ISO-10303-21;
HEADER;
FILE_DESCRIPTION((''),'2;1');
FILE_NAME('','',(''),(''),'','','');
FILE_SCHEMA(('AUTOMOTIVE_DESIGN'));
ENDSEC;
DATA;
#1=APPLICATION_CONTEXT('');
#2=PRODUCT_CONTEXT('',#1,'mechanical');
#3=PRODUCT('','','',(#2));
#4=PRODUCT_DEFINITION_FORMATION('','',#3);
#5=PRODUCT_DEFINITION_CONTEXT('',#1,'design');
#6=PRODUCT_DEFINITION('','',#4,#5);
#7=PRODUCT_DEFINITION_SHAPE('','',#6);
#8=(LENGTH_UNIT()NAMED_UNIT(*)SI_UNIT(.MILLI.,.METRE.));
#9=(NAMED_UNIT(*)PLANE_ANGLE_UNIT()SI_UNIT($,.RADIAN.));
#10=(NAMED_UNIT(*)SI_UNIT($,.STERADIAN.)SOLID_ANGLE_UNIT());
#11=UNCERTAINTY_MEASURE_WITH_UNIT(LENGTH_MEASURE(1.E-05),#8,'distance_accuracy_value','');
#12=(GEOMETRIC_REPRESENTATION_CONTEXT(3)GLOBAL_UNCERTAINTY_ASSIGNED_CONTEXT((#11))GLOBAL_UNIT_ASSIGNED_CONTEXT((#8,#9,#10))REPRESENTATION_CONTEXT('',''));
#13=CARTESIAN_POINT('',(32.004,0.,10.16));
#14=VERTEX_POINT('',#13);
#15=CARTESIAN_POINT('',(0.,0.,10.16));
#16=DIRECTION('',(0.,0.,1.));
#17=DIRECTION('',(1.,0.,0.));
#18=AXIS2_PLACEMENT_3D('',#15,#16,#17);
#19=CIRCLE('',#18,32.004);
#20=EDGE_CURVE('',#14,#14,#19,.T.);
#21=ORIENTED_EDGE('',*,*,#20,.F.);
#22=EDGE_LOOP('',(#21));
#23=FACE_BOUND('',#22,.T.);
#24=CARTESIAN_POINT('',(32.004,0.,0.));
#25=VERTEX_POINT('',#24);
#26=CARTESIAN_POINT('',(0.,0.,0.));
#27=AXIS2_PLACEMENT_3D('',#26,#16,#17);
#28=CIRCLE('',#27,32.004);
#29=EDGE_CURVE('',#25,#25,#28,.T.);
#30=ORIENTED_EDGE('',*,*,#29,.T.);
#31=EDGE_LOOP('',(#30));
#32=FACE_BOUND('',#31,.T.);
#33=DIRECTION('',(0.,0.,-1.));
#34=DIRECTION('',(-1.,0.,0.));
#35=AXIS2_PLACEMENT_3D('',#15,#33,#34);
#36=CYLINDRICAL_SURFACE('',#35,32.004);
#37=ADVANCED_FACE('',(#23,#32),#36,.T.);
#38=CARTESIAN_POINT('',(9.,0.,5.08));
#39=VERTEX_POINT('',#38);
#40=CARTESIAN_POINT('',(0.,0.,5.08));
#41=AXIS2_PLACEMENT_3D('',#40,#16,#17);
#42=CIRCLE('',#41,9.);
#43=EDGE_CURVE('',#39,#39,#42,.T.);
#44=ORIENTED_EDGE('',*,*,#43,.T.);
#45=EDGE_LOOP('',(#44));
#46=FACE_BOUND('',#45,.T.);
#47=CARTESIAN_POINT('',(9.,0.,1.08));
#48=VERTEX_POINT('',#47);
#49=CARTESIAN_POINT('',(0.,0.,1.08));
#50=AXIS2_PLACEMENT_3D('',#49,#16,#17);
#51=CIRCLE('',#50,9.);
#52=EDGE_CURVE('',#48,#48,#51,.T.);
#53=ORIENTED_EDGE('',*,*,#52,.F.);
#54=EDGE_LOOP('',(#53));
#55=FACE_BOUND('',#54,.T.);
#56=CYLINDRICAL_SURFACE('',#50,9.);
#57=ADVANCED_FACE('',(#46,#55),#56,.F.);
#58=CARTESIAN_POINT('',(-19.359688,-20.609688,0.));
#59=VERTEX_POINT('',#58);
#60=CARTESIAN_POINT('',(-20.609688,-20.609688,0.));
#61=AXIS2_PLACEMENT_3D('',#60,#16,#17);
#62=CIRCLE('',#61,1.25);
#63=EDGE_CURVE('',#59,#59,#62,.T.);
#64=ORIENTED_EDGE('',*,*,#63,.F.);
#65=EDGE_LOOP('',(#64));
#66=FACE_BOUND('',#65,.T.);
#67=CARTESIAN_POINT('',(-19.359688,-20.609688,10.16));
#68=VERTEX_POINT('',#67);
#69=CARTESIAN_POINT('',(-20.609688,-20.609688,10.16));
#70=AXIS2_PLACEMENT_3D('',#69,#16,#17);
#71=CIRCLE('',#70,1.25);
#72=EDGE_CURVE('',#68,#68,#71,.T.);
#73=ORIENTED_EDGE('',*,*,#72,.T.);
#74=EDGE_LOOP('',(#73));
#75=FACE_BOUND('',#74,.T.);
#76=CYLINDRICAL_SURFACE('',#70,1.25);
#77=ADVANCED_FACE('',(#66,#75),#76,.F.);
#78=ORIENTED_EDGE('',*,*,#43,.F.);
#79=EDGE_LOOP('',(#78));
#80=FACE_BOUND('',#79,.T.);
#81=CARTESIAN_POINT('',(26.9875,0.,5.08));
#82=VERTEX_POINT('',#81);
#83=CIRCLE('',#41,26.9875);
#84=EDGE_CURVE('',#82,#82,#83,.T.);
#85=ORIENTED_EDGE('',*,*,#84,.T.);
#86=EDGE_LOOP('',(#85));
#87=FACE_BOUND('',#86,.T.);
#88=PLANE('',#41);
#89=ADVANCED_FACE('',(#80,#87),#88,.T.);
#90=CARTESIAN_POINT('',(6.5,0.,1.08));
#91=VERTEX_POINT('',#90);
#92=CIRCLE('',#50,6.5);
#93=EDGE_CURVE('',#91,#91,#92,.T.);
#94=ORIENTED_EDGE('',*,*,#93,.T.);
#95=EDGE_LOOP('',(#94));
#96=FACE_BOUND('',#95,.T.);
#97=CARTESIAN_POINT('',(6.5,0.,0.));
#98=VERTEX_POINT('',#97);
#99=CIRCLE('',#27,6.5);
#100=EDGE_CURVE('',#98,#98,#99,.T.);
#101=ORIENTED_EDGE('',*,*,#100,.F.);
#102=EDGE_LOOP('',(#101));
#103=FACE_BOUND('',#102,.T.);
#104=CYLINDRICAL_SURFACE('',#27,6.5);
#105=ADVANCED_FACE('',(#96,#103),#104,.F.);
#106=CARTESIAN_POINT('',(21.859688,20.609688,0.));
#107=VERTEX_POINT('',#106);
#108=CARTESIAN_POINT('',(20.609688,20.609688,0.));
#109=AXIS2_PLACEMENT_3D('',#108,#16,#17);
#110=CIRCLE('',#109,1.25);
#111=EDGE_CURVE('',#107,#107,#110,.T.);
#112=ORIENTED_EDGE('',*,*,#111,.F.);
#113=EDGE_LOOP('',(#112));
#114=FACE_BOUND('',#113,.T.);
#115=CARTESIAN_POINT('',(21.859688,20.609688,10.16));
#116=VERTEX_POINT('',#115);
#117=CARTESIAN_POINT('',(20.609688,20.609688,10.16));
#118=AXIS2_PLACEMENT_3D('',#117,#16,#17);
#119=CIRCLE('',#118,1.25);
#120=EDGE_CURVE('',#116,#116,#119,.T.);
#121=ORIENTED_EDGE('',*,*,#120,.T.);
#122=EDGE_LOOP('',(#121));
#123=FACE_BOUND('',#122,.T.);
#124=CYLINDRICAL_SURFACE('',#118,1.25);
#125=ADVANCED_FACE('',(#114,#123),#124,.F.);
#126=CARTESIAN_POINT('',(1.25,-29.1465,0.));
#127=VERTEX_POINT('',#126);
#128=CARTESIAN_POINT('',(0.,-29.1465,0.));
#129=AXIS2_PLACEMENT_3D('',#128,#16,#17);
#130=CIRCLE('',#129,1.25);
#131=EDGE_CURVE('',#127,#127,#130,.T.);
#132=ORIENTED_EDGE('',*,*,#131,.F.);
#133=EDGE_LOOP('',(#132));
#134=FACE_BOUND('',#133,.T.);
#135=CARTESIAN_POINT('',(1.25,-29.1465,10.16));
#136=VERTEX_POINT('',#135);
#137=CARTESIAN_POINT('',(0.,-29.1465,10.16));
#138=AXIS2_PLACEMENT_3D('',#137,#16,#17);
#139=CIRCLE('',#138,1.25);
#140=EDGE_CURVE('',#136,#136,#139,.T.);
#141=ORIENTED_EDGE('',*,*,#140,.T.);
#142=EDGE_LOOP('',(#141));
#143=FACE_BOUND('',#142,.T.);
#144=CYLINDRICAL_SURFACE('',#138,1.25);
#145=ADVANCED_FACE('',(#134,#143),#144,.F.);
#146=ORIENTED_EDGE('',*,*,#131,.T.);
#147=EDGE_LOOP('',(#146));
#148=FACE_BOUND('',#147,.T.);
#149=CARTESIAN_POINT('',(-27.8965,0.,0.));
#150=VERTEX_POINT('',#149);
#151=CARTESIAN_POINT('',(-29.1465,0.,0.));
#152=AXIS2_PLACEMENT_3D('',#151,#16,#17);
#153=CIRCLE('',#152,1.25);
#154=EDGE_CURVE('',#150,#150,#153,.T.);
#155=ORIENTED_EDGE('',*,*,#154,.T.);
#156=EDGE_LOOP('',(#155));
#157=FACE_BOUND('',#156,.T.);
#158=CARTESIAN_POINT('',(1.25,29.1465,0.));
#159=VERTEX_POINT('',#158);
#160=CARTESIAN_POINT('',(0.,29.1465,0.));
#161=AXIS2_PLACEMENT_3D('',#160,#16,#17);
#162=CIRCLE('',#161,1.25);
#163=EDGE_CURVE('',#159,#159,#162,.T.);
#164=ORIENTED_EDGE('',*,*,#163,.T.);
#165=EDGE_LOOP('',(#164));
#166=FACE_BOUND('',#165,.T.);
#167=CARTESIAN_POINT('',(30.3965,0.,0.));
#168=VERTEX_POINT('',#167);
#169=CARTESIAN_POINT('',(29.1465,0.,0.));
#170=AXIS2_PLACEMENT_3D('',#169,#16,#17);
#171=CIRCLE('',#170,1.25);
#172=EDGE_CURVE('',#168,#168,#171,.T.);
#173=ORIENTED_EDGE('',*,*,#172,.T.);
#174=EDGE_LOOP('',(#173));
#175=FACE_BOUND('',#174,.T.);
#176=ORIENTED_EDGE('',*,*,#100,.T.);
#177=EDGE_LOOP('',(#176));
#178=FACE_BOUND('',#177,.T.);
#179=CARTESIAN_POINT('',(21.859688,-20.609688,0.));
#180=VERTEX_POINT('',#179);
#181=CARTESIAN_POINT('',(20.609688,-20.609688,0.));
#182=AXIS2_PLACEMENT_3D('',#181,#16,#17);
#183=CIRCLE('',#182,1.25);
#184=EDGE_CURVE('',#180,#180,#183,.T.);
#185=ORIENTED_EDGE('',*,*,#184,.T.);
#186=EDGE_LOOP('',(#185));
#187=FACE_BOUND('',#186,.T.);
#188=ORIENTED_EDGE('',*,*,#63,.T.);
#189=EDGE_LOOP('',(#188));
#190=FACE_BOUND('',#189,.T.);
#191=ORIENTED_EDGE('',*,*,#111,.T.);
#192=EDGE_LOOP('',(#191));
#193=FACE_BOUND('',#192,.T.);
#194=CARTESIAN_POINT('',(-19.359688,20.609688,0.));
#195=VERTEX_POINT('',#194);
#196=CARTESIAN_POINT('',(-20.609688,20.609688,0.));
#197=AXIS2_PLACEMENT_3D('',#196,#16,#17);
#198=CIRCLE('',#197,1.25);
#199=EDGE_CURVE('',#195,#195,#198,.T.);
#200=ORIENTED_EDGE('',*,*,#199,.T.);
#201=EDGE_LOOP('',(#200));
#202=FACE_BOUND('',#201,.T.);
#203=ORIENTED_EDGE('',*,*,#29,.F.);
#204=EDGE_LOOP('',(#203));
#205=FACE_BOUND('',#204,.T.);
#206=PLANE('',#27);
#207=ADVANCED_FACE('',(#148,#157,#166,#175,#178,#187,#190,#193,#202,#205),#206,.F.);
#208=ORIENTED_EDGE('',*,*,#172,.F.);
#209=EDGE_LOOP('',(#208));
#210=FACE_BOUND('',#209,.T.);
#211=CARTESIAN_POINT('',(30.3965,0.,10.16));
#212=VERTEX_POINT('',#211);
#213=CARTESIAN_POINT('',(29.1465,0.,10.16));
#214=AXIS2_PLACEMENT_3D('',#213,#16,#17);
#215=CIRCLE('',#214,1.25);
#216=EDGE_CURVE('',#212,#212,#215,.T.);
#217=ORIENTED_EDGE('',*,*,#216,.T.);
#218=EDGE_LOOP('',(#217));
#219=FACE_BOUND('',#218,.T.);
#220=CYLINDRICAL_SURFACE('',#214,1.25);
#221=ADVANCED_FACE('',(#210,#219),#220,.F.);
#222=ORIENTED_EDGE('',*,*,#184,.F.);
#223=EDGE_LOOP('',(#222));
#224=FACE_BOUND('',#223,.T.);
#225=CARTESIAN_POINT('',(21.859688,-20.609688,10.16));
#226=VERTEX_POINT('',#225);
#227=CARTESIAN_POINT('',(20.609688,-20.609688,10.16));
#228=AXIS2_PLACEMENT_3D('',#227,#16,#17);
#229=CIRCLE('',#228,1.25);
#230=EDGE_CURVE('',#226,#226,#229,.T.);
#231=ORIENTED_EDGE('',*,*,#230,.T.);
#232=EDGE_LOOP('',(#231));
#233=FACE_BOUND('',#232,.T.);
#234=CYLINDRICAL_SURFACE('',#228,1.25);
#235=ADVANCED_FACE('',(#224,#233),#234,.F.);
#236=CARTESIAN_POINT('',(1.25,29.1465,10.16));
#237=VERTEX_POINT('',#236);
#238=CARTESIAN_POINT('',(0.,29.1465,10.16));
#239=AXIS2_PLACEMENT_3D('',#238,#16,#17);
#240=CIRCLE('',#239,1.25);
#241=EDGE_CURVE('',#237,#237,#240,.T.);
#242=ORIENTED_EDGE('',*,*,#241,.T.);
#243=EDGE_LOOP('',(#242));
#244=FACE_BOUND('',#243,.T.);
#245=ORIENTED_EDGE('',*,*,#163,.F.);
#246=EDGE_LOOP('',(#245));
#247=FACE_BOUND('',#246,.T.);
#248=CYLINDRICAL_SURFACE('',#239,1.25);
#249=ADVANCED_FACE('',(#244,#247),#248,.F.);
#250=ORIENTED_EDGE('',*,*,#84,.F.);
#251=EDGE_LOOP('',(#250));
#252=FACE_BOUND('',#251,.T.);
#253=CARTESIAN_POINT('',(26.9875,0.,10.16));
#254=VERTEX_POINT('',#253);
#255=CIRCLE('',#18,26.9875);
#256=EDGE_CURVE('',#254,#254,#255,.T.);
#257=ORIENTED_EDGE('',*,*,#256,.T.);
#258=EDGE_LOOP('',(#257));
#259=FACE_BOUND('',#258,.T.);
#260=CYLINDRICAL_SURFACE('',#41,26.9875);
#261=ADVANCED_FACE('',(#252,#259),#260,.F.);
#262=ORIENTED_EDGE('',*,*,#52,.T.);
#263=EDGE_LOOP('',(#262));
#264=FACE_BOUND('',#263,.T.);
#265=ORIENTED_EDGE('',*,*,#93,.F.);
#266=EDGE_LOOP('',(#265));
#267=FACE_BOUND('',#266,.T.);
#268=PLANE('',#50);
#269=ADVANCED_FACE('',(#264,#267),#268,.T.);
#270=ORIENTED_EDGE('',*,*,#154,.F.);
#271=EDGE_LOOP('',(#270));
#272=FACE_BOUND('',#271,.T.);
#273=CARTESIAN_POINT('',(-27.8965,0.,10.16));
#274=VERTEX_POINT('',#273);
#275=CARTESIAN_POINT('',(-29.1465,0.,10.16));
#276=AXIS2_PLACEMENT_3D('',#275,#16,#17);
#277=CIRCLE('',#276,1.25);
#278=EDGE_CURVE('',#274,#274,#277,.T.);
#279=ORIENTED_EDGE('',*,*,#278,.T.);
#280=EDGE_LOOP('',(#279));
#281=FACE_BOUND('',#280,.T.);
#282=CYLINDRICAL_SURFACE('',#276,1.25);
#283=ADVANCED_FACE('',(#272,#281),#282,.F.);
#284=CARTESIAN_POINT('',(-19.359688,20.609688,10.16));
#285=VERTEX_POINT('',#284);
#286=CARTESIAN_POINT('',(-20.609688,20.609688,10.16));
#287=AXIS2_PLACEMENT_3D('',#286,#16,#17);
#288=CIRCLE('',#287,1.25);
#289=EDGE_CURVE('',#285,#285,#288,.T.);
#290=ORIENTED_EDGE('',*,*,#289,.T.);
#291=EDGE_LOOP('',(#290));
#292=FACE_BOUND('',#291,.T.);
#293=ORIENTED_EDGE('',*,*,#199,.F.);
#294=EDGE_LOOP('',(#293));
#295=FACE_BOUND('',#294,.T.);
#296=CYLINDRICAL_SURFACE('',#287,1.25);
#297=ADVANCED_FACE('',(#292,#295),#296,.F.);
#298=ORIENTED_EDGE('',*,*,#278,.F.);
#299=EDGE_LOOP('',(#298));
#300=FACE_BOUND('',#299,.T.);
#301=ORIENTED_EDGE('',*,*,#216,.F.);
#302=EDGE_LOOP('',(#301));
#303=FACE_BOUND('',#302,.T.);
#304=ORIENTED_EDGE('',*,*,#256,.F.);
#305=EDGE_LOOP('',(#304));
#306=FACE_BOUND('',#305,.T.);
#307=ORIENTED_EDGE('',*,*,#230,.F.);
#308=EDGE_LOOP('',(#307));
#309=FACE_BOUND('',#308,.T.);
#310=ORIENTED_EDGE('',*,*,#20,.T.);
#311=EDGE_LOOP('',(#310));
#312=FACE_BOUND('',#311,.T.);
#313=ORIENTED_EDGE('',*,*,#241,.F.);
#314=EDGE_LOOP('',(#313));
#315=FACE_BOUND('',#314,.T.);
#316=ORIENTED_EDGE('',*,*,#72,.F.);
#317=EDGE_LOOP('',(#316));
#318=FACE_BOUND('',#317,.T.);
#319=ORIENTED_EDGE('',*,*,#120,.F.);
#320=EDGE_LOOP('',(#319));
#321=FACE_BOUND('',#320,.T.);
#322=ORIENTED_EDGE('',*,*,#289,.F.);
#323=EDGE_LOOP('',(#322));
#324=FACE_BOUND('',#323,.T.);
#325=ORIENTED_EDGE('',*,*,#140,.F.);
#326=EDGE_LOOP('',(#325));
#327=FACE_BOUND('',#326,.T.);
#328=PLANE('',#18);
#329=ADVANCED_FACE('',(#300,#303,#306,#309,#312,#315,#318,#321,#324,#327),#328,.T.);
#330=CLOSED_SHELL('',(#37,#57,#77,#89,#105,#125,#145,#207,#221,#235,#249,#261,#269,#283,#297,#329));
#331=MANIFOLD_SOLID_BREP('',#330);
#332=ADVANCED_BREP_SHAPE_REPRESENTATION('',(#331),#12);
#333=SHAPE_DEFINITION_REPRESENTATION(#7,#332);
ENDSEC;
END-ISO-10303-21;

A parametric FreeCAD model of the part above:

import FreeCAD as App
import Part
import Sketcher
Q = App.Units.Quantity

doc = App.newDocument("Part")
body = doc.addObject("PartDesign::Body", "Body")

sketch1 = body.newObject("Sketcher::SketchObject", "Sketch")
sketch1.AttachmentSupport = (doc.getObject("XY_Plane"), [""])
sketch1.MapMode = "FlatFace"
sketch1.addGeometry(Part.Circle(App.Vector(0, 0, 0), App.Vector(0, 0, 1), 32), False)
sketch1.addConstraint([
    Sketcher.Constraint("Coincident", 0, 3, -1, 1),
    Sketcher.Constraint("Diameter", 0, Q("64.008 mm")),
])
pad1 = body.newObject("PartDesign::Pad", "Pad")
pad1.Profile = sketch1
pad1.Length = 10.16

sketch2 = body.newObject("Sketcher::SketchObject", "Sketch001")
sketch2.AttachmentSupport = (doc.getObject("XY_Plane"), [""])
sketch2.MapMode = "FlatFace"
sketch2.AttachmentOffset = App.Placement(App.Vector(0, 0, 10.16), App.Rotation())
sketch2.addGeometry(Part.Circle(App.Vector(0, 0, 0), App.Vector(0, 0, 1), 27), False)
sketch2.addConstraint([
    Sketcher.Constraint("Coincident", 0, 3, -1, 1),
    Sketcher.Constraint("Diameter", 0, Q("53.975 mm")),
])
pocket1 = body.newObject("PartDesign::Pocket", "Pocket")
pocket1.Profile = sketch2
pocket1.Length = 5.08

sketch3 = body.newObject("Sketcher::SketchObject", "Sketch002")
sketch3.AttachmentSupport = (doc.getObject("XY_Plane"), [""])
sketch3.MapMode = "FlatFace"
sketch3.AttachmentOffset = App.Placement(App.Vector(0, 0, 5.08), App.Rotation())
sketch3.addGeometry(Part.Circle(App.Vector(0, 0, 0), App.Vector(0, 0, 1), 9), False)
sketch3.addConstraint([
    Sketcher.Constraint("Coincident", 0, 3, -1, 1),
    Sketcher.Constraint("Diameter", 0, Q("18 mm")),
])
pocket2 = body.newObject("PartDesign::Pocket", "Pocket001")
pocket2.Profile = sketch3
pocket2.Length = 4

sketch4 = body.newObject("Sketcher::SketchObject", "Sketch003")
sketch4.AttachmentSupport = (doc.getObject("XY_Plane"), [""])
sketch4.MapMode = "FlatFace"
sketch4.AttachmentOffset = App.Placement(App.Vector(0, 0, 1.08), App.Rotation())
sketch4.addGeometry(Part.Circle(App.Vector(0, 0, 0), App.Vector(0, 0, 1), 6), False)
sketch4.addConstraint([
    Sketcher.Constraint("Coincident", 0, 3, -1, 1),
    Sketcher.Constraint("Diameter", 0, Q("13 mm")),
])
pocket3 = body.newObject("PartDesign::Pocket", "Pocket002")
pocket3.Profile = sketch4
pocket3.Type = "ThroughAll"

sketch5 = body.newObject("Sketcher::SketchObject", "Sketch004")
sketch5.AttachmentSupport = (doc.getObject("XY_Plane"), [""])
sketch5.MapMode = "FlatFace"
sketch5.AttachmentOffset = App.Placement(App.Vector(0, 0, 10.16), App.Rotation())
sketch5.addGeometry([
    Part.Circle(App.Vector(-20.6, 20.6, 0), App.Vector(0, 0, 1), 1.2),
    Part.Circle(App.Vector(0, 29.1, 0), App.Vector(0, 0, 1), 1.2),
    Part.Circle(App.Vector(20.6, 20.6, 0), App.Vector(0, 0, 1), 1.2),
    Part.Circle(App.Vector(29.1, 0, 0), App.Vector(0, 0, 1), 1.2),
    Part.Circle(App.Vector(20.6, -20.6, 0), App.Vector(0, 0, 1), 1.2),
    Part.Circle(App.Vector(0, -29.1, 0), App.Vector(0, 0, 1), 1.2),
    Part.Circle(App.Vector(-20.6, -20.6, 0), App.Vector(0, 0, 1), 1.2),
    Part.Circle(App.Vector(-29.1, 0, 0), App.Vector(0, 0, 1), 1.2),
], False)
sketch5.addConstraint([
    Sketcher.Constraint("Equal", 0, 1),
    Sketcher.Constraint("Equal", 1, 2),
    Sketcher.Constraint("Equal", 2, 3),
    Sketcher.Constraint("Equal", 3, 4),
    Sketcher.Constraint("Equal", 4, 5),
    Sketcher.Constraint("Equal", 5, 6),
    Sketcher.Constraint("Equal", 6, 7),
    Sketcher.Constraint("Symmetric", 0, 3, 4, 3, -1, 1),
    Sketcher.Constraint("Symmetric", 1, 3, 5, 3, -1, 1),
    Sketcher.Constraint("Symmetric", 2, 3, 6, 3, -1, 1),
    Sketcher.Constraint("Symmetric", 3, 3, 7, 3, -1, 1),
    Sketcher.Constraint("Symmetric", 0, 3, 2, 3, -2),
    Sketcher.Constraint("PointOnObject", 1, 3, -2),
    Sketcher.Constraint("PointOnObject", 3, 3, -1),
    Sketcher.Constraint("Diameter", 0, Q("2.5 mm")),
    Sketcher.Constraint("DistanceY", 5, 3, 1, 3, Q("58.293 mm")),
    Sketcher.Constraint("DistanceX", -1, 1, 3, 3, Q("29.1465 mm")),
    Sketcher.Constraint("DistanceX", 0, 3, -1, 1, Q("20.609688 mm")),
    Sketcher.Constraint("DistanceY", -1, 1, 0, 3, Q("20.609688 mm")),
])
doc.recompute()
hole = body.newObject("PartDesign::Hole", "Hole")
hole.Profile = sketch5
hole.ThreadType = "None"
hole.Diameter = 2.5
hole.DepthType = "ThroughAll"

doc.recompute()
